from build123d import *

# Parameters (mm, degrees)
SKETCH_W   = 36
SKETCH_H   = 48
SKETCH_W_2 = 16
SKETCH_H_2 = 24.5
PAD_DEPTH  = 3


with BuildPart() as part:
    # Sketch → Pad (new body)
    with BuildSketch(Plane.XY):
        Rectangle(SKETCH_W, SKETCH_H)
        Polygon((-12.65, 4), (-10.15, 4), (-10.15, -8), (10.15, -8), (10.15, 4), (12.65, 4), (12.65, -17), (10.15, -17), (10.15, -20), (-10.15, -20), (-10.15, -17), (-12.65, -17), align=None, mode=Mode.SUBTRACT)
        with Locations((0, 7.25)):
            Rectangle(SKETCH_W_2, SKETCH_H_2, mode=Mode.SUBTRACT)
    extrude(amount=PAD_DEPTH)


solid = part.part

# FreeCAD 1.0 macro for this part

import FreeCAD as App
import Part
import Sketcher


def add_polygon(sketch, points):
    """Adds a closed chain of lines whose ends are joined by coincident constraints."""
    first, n = sketch.GeometryCount, len(points)
    for a, b in zip(points, points[1:] + points[:1]):
        sketch.addGeometry(Part.LineSegment(App.Vector(*a, 0), App.Vector(*b, 0)), False)
    for i in range(n):
        sketch.addConstraint(Sketcher.Constraint("Coincident", first + i, 2, first + (i + 1) % n, 1))

doc = App.newDocument("Part")
params = doc.addObject("Spreadsheet::Sheet", "Params")
for row, (alias, value) in enumerate([
    ("sketch1_width", "36 mm"),
    ("sketch1_width2", "16 mm"),
    ("sketch1_height", "48 mm"),
    ("sketch1_height2", "21 mm"),
    ("sketch1_height3", "12 mm"),
    ("pad1_length", "3 mm"),
], start=1):
    params.set(f"A{row}", alias)
    params.set(f"B{row}", "=" + value)
    params.setAlias(f"B{row}", alias)

body = doc.addObject("PartDesign::Body", "Body")

sketch1 = body.newObject("Sketcher::SketchObject", "Sketch")
sketch1.AttachmentSupport = (doc.getObject("XY_Plane"), [""])
sketch1.MapMode = "FlatFace"
add_polygon(sketch1, [(-18, 24), (-18, -24), (18, -24), (18, 24)])
add_polygon(sketch1, [(-12.7, -17), (-12.7, 4), (-10.2, 4), (-10.2, -8), (10.2, -8), (10.2, 4), (12.7, 4), (12.7, -17), (10.2, -17), (10.2, -20), (-10.2, -20), (-10.2, -17)])
add_polygon(sketch1, [(8, -5), (-8, -5), (-8, 19.5), (8, 19.5)])
sketch1.addConstraint(Sketcher.Constraint("Vertical", 0))
sketch1.addConstraint(Sketcher.Constraint("Horizontal", 1))
sketch1.addConstraint(Sketcher.Constraint("Vertical", 2))
sketch1.addConstraint(Sketcher.Constraint("Horizontal", 3))
sketch1.addConstraint(Sketcher.Constraint("Vertical", 4))
sketch1.addConstraint(Sketcher.Constraint("Horizontal", 5))
sketch1.addConstraint(Sketcher.Constraint("Vertical", 6))
sketch1.addConstraint(Sketcher.Constraint("Horizontal", 7))
sketch1.addConstraint(Sketcher.Constraint("Vertical", 8))
sketch1.addConstraint(Sketcher.Constraint("Horizontal", 9))
sketch1.addConstraint(Sketcher.Constraint("Vertical", 10))
sketch1.addConstraint(Sketcher.Constraint("Horizontal", 11))
sketch1.addConstraint(Sketcher.Constraint("Vertical", 12))
sketch1.addConstraint(Sketcher.Constraint("Horizontal", 13))
sketch1.addConstraint(Sketcher.Constraint("Vertical", 14))
sketch1.addConstraint(Sketcher.Constraint("Horizontal", 15))
sketch1.addConstraint(Sketcher.Constraint("Horizontal", 16))
sketch1.addConstraint(Sketcher.Constraint("Vertical", 17))
sketch1.addConstraint(Sketcher.Constraint("Horizontal", 18))
sketch1.addConstraint(Sketcher.Constraint("Vertical", 19))
sketch1.addConstraint(Sketcher.Constraint("Symmetric", 0, 2, 2, 2, -1, 1))
sketch1.addConstraint(Sketcher.Constraint("Symmetric", 5, 2, 8, 2, -2))
sketch1.addConstraint(Sketcher.Constraint("Symmetric", 11, 2, 14, 2, -2))
sketch1.addConstraint(Sketcher.Constraint("Vertical", 8, 2, 11, 2))
sketch1.addConstraint(Sketcher.Constraint("Equal", 5, 9))
sketch1.addConstraint(Sketcher.Constraint("DistanceX", 1, 1, 1, 2, 36.0))
sketch1.addConstraint(Sketcher.Constraint("DistanceX", 16, 2, 16, 1, 16.0))
sketch1.addConstraint(Sketcher.Constraint("DistanceY", 0, 2, 0, 1, 48.0))
sketch1.addConstraint(Sketcher.Constraint("DistanceY", 4, 1, 4, 2, 21.0))
sketch1.addConstraint(Sketcher.Constraint("DistanceY", 6, 2, 6, 1, 12.0))
sketch1.addConstraint(Sketcher.Constraint("DistanceY", 12, 2, 12, 1, 3.0))
sketch1.addConstraint(Sketcher.Constraint("DistanceX", 5, 1, 5, 2, 2.5))
sketch1.addConstraint(Sketcher.Constraint("DistanceX", 7, 1, 7, 2, 20.3))
sketch1.addConstraint(Sketcher.Constraint("DistanceY", 17, 1, 17, 2, 24.5))
sketch1.addConstraint(Sketcher.Constraint("DistanceY", -1, 1, 4, 2, 4.0))
sketch1.addConstraint(Sketcher.Constraint("DistanceX", 16, 2, -1, 1, 8.0))
sketch1.addConstraint(Sketcher.Constraint("DistanceY", 16, 2, -1, 1, 5.0))
sketch1.setExpression("Constraints[45]", "Params.sketch1_width")
sketch1.setExpression("Constraints[46]", "Params.sketch1_width2")
sketch1.setExpression("Constraints[47]", "Params.sketch1_height")
sketch1.setExpression("Constraints[48]", "Params.sketch1_height2")
sketch1.setExpression("Constraints[49]", "Params.sketch1_height3")
pad1 = body.newObject("PartDesign::Pad", "Pad")
pad1.Profile = sketch1
pad1.setExpression("Length", "Params.pad1_length")

doc.recompute()
